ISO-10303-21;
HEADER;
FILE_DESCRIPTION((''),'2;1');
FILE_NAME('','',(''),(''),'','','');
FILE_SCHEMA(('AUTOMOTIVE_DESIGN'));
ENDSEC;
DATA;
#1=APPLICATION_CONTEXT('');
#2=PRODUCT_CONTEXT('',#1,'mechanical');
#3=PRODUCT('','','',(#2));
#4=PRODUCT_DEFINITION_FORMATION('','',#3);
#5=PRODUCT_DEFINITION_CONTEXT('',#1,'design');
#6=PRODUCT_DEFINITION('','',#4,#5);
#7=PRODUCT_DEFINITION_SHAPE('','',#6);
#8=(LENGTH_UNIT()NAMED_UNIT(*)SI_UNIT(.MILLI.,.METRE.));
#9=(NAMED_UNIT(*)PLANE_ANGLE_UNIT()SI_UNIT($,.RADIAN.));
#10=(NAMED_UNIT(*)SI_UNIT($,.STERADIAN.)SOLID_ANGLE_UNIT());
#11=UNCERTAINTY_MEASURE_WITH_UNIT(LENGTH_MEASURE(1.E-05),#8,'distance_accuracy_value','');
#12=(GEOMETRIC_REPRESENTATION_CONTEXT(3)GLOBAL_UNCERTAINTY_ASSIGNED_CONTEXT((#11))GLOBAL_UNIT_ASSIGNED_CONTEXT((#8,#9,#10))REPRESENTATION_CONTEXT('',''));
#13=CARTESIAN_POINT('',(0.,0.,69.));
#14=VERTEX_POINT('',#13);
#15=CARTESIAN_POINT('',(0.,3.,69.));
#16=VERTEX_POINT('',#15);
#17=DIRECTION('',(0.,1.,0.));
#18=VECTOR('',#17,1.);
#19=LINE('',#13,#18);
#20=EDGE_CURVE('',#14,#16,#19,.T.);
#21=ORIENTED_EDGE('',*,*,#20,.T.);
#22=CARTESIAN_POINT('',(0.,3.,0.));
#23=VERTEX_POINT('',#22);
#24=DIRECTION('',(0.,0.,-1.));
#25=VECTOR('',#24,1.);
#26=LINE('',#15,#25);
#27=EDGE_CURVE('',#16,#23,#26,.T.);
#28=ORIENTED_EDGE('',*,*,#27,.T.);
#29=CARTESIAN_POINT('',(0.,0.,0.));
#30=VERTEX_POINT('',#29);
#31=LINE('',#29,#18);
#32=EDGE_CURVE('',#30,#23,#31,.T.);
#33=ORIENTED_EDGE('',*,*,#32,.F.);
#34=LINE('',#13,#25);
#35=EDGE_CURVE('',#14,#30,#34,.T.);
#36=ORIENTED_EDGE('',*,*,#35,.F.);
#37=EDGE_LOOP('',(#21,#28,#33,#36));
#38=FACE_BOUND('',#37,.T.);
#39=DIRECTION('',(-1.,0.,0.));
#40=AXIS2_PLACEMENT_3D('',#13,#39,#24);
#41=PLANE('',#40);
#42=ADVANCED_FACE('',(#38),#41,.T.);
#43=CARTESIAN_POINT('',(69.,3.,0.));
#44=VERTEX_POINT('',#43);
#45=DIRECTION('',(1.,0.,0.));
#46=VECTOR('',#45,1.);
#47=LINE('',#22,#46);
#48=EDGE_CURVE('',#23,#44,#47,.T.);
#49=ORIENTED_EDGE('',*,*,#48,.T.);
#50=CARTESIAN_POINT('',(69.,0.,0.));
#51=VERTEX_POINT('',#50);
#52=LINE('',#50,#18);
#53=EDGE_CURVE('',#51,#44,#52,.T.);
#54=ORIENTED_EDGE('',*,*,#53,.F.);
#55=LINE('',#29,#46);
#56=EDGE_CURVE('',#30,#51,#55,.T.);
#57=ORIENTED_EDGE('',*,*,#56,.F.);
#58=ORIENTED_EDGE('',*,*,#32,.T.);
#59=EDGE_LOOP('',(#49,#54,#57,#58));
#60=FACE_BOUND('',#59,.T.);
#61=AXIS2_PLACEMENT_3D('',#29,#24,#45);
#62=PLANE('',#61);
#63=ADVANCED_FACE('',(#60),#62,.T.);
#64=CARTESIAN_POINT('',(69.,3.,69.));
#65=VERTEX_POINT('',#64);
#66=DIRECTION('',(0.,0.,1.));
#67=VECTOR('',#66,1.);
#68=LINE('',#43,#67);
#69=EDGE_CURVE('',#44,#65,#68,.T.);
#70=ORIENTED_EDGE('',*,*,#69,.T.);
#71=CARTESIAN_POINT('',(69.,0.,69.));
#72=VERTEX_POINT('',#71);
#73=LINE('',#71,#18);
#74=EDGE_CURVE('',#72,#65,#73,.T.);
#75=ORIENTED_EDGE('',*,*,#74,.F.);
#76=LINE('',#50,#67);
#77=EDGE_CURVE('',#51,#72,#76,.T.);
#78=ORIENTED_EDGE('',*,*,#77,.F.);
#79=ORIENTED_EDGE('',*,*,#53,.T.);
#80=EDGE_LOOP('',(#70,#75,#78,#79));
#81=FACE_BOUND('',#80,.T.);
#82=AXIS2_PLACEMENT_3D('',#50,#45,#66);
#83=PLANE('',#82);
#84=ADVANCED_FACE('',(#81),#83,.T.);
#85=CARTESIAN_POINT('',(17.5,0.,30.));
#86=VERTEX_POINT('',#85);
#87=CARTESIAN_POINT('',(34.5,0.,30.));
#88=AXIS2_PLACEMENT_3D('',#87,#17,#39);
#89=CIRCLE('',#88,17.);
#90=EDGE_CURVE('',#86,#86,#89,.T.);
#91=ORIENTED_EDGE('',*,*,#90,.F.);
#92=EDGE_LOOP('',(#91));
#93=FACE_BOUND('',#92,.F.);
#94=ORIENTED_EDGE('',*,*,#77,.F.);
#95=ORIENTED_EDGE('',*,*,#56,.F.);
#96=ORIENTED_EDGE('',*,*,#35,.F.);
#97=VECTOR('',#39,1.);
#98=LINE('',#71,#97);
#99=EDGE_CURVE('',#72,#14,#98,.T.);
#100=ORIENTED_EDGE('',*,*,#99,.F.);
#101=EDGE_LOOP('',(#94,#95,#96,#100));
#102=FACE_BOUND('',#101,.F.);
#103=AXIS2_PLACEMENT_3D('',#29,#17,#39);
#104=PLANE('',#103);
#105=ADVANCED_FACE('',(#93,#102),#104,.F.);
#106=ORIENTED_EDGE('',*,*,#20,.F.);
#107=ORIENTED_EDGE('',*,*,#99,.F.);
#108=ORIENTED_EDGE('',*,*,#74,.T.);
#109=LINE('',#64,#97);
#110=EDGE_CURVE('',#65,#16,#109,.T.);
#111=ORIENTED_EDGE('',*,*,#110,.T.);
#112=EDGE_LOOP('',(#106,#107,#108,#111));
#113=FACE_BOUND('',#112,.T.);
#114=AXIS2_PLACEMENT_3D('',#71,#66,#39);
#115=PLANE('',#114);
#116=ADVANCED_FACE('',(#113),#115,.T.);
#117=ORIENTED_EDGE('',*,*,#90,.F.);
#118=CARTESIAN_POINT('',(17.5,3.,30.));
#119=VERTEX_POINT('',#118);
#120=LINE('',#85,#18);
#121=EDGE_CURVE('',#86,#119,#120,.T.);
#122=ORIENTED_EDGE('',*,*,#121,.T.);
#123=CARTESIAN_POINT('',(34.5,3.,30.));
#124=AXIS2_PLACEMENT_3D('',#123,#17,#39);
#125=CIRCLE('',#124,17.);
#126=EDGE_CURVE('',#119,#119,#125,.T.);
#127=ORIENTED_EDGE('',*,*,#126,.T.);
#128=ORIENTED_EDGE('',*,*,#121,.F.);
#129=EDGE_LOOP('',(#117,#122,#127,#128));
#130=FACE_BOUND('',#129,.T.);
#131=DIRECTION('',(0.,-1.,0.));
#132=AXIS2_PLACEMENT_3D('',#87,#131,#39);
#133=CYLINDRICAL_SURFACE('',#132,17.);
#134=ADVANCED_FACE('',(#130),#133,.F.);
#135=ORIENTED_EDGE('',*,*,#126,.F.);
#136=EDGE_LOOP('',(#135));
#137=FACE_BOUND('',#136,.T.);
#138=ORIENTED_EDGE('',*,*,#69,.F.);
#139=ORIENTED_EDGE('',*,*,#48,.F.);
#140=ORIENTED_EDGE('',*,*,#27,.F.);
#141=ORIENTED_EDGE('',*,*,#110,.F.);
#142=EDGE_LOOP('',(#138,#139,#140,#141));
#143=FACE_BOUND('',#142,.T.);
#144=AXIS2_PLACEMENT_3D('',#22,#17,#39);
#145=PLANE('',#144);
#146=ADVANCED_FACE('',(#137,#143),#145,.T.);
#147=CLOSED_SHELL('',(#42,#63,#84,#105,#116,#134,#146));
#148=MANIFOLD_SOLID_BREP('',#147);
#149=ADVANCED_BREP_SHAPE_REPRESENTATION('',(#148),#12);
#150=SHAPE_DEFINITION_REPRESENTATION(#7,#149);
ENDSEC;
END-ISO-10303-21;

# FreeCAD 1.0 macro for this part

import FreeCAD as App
import Part
import Sketcher
from FreeCAD import Vector

doc = App.newDocument("Part")
body = doc.addObject("PartDesign::Body", "Body")

# Sketch on XZ plane
sketch1 = body.newObject("Sketcher::SketchObject", "Sketch")
sketch1.AttachmentSupport = (doc.getObject("XZ_Plane"), [""])
sketch1.MapMode = "FlatFace"
sketch1.addGeometry([
    Part.LineSegment(Vector(69, 0, 0), Vector(0, 0, 0)),  # 0
    Part.LineSegment(Vector(0, 0, 0), Vector(0, 69, 0)),  # 1
    Part.LineSegment(Vector(0, 69, 0), Vector(69, 69, 0)),  # 2
    Part.LineSegment(Vector(69, 69, 0), Vector(69, 0, 0)),  # 3
    Part.Circle(Vector(34, 30, 0), Vector(0, 0, 1), 17),  # 4
], False)
sketch1.addConstraint([
    Sketcher.Constraint("Coincident", 0, 2, 1, 1),
    Sketcher.Constraint("Coincident", 1, 2, 2, 1),
    Sketcher.Constraint("Coincident", 2, 2, 3, 1),
    Sketcher.Constraint("Coincident", 3, 2, 0, 1),
    Sketcher.Constraint("Horizontal", 0),
    Sketcher.Constraint("Vertical", 1),
    Sketcher.Constraint("Horizontal", 2),
    Sketcher.Constraint("Vertical", 3),
    Sketcher.Constraint("Coincident", 0, 2, -1, 1),
    Sketcher.Constraint("Equal", 2, 1),
    Sketcher.Constraint("Diameter", 4, 34.0),
    Sketcher.Constraint("DistanceX", 0, 2, 0, 1, 69.0),
    Sketcher.Constraint("DistanceY", -1, 1, 4, 3, 30.0),
    Sketcher.Constraint("DistanceX", -1, 1, 4, 3, 34.5),
])
pad1 = body.newObject("PartDesign::Pad", "Pad")
pad1.Profile = sketch1
pad1.Length = 3
pad1.Reversed = True

doc.recompute()
